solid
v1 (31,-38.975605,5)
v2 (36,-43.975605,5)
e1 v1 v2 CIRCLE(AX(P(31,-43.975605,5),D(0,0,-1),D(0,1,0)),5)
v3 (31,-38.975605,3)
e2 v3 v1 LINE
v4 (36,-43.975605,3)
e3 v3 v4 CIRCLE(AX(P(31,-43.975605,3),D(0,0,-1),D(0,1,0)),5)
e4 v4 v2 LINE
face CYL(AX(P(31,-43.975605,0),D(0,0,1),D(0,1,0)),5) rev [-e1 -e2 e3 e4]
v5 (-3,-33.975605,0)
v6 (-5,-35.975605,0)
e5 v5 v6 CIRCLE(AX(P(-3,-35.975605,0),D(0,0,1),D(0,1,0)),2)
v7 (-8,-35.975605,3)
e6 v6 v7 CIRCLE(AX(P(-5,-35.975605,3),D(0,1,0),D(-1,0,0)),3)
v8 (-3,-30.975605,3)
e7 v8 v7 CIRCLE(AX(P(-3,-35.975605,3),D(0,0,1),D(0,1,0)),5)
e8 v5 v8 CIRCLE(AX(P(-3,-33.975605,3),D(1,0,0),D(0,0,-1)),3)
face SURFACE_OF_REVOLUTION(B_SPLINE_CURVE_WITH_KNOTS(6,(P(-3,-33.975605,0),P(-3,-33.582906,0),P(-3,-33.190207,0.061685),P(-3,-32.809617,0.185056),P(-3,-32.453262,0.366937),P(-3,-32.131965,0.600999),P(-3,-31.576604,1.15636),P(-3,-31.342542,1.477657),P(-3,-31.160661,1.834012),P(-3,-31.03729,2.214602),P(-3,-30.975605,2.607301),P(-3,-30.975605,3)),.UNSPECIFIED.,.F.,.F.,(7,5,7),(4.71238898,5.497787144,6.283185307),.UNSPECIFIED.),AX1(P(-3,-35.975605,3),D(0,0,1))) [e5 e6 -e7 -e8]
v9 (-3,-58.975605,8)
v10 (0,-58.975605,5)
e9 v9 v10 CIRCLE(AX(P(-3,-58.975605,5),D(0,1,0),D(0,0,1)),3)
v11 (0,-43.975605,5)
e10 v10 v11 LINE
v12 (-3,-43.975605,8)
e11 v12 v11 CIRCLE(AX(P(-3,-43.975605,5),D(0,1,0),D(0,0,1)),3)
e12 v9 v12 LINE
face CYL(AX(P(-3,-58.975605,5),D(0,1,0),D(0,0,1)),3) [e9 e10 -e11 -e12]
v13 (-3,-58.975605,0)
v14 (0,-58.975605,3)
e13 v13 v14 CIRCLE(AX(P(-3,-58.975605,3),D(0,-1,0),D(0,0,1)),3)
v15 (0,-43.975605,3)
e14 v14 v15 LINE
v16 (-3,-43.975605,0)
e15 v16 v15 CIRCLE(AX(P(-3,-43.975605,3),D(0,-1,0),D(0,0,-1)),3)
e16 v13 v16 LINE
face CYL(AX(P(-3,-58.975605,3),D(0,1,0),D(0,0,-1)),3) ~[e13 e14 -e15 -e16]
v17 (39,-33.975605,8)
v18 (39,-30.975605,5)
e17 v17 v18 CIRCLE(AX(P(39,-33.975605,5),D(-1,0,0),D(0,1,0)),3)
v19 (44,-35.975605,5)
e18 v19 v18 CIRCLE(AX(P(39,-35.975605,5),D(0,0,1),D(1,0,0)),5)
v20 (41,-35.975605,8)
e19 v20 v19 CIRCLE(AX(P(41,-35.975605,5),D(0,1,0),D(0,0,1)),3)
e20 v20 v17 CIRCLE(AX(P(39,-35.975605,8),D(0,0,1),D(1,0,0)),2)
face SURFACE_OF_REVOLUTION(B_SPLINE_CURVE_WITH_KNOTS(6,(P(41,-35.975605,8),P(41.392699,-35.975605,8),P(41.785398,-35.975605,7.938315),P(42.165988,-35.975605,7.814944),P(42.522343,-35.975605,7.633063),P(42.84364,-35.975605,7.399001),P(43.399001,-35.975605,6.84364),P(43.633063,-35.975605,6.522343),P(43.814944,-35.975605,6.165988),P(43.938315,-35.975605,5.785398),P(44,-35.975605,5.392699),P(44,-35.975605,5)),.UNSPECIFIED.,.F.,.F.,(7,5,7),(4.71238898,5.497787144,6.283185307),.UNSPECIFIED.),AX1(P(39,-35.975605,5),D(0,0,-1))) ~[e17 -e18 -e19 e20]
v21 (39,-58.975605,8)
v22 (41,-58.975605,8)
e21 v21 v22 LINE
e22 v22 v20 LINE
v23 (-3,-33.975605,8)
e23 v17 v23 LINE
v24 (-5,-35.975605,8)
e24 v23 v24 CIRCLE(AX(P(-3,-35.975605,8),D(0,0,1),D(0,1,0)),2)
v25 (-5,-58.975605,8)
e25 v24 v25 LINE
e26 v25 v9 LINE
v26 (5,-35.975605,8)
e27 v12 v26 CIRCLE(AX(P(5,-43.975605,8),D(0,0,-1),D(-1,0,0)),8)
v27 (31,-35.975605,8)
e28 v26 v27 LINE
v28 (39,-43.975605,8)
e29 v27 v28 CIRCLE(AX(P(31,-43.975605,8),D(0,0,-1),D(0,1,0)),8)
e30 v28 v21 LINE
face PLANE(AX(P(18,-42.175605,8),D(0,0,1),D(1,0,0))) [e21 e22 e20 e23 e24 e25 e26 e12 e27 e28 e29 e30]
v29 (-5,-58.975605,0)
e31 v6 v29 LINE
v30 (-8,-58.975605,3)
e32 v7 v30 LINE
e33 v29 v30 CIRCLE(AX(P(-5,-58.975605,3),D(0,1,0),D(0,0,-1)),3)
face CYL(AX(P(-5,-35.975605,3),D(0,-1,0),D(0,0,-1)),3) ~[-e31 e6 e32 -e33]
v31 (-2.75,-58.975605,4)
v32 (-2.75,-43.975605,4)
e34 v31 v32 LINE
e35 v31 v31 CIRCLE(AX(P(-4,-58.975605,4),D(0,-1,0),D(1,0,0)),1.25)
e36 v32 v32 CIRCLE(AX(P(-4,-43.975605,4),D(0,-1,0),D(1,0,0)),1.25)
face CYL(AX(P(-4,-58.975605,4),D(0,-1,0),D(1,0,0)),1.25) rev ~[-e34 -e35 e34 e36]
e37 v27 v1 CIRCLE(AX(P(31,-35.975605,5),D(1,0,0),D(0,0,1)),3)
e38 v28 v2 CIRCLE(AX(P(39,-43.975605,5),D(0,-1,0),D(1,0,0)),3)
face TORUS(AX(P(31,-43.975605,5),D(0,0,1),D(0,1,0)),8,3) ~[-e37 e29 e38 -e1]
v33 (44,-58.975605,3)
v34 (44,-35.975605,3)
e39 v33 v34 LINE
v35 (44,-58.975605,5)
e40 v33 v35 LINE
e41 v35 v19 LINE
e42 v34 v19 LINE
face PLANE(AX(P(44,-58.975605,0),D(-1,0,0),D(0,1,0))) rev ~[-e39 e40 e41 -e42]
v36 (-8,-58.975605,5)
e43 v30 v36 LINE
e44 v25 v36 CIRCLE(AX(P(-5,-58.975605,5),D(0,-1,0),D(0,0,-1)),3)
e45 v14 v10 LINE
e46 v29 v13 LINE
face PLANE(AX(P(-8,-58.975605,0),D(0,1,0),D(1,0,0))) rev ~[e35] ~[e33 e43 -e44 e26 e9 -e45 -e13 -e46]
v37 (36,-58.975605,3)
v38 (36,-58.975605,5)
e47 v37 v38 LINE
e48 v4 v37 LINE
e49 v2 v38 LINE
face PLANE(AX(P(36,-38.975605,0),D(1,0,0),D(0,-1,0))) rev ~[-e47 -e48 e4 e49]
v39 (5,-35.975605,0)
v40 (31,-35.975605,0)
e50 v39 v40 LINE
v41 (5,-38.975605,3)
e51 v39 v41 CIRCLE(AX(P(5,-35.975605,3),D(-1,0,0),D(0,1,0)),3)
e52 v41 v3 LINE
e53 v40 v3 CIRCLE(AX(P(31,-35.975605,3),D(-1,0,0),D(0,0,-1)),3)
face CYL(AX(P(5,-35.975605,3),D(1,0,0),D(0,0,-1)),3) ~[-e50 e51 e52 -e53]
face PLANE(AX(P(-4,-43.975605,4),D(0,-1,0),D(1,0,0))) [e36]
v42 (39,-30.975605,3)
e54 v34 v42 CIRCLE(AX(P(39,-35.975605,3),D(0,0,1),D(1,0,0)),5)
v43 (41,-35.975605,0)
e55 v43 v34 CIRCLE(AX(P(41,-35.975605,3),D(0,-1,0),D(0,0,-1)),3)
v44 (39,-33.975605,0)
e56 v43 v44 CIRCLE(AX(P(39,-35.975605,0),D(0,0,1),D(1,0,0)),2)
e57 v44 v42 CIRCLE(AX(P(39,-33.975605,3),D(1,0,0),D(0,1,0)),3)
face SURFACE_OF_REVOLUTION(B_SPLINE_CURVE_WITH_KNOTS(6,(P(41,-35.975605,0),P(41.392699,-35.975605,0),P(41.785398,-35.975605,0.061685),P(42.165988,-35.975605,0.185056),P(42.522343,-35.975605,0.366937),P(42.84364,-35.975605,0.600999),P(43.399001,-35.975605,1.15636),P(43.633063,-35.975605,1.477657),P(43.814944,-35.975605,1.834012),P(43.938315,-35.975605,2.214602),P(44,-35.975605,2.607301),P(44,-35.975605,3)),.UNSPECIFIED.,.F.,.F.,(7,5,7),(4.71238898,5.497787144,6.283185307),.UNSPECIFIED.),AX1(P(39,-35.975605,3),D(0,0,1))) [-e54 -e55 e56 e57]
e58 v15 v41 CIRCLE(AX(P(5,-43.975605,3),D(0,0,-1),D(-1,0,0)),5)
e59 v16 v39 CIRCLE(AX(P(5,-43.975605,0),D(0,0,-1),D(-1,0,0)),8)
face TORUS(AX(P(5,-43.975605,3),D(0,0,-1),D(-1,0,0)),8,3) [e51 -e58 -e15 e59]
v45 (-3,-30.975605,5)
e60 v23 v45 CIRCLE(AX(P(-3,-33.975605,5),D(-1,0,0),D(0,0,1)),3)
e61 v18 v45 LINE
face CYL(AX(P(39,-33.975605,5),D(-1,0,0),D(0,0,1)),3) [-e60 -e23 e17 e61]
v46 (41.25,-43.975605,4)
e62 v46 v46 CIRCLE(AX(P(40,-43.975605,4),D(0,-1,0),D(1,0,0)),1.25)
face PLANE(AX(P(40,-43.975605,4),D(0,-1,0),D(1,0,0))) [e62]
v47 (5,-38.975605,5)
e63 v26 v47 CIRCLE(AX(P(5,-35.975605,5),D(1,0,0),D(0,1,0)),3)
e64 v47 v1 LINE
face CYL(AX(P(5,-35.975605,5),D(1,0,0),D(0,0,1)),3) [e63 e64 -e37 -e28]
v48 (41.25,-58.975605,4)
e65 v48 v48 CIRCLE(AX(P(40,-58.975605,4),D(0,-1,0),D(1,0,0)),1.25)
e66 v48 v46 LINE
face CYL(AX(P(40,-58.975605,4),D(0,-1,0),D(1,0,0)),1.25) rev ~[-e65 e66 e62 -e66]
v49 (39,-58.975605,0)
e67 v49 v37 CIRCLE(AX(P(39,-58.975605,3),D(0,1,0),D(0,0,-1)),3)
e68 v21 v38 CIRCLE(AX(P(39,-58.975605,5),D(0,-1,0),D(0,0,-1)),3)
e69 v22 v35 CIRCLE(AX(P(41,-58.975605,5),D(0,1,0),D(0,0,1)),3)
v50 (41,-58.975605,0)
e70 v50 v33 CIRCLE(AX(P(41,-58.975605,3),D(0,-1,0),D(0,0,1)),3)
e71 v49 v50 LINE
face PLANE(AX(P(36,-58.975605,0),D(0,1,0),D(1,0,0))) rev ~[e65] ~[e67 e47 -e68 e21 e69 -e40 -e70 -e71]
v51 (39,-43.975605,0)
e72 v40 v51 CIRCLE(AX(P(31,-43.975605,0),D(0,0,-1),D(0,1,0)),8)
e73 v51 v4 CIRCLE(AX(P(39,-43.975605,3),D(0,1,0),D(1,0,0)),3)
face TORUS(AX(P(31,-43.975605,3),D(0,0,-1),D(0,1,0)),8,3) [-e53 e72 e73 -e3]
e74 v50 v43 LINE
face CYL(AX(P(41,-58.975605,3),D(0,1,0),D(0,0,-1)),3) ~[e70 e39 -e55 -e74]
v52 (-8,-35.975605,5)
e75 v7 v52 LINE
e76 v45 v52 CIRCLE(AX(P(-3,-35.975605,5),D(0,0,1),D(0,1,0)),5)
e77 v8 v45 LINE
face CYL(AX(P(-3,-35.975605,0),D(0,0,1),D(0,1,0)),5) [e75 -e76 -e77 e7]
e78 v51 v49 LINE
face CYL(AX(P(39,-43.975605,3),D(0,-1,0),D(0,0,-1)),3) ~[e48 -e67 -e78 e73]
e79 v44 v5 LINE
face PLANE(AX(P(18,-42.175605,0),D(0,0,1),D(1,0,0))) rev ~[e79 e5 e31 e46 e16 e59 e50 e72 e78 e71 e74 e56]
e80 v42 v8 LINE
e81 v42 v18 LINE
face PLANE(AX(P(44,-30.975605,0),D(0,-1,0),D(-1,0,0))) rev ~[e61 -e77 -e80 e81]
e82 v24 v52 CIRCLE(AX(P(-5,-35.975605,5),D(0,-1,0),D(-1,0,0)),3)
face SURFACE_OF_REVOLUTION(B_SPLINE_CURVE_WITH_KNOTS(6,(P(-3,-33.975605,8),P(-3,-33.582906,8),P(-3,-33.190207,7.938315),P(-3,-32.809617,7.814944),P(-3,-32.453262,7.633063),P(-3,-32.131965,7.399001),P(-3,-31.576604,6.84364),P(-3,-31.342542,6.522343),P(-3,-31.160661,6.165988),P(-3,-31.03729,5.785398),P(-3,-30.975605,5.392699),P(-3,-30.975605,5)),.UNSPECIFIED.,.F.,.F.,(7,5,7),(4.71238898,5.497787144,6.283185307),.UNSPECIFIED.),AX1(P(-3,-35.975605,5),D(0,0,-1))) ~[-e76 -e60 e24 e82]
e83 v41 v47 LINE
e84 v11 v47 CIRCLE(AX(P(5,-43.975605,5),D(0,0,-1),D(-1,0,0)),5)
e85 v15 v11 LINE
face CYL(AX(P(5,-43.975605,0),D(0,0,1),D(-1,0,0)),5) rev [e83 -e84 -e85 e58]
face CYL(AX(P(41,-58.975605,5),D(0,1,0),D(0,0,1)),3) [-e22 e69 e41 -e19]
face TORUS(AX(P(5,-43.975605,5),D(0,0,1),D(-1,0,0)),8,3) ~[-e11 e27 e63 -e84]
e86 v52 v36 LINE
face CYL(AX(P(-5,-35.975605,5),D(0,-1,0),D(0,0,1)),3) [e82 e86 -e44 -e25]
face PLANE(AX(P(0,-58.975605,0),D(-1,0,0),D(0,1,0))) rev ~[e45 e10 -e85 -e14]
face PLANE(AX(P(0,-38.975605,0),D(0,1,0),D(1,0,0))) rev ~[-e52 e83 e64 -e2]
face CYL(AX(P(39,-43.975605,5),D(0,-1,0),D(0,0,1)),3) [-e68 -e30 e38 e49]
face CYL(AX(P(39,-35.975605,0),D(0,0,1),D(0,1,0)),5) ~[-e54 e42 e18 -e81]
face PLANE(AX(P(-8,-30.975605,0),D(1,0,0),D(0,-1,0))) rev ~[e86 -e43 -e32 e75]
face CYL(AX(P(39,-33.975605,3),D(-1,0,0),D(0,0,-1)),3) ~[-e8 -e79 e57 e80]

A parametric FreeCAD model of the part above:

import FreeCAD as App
import Part
import Sketcher
Q = App.Units.Quantity


def edges_at(feature, points):
    """Names of the edges that pass closest to the given points."""
    edges = feature.Shape.Edges
    near = lambda p: min(range(len(edges)), key=lambda i: edges[i].distToShape(Part.Vertex(*p))[0])
    return sorted({f"Edge{near(p) + 1}" for p in points})


def add_polygon(sketch, points):
    """Adds a closed chain of lines whose ends are joined by coincident constraints."""
    first, n = sketch.GeometryCount, len(points)
    for a, b in zip(points, points[1:] + points[:1]):
        sketch.addGeometry(Part.LineSegment(App.Vector(*a, 0), App.Vector(*b, 0)), False)
    for i in range(n):
        sketch.addConstraint(Sketcher.Constraint("Coincident", first + i, 2, first + (i + 1) % n, 1))

doc = App.newDocument("Part")
body = doc.addObject("PartDesign::Body", "Body")

sketch1 = doc.addObject("Sketcher::SketchObject", "Sketch")
body.addObject(sketch1)
sketch1.AttachmentSupport = (doc.XY_Plane, [""])
sketch1.MapMode = "FlatFace"
add_polygon(sketch1, [(44, -31), (-8, -31), (-8, -59), (0, -59), (0, -39), (36, -39), (36, -59), (44, -59)])
sketch1.addConstraint(Sketcher.Constraint("Horizontal", 0))
sketch1.addConstraint(Sketcher.Constraint("Vertical", 1))
sketch1.addConstraint(Sketcher.Constraint("Horizontal", 2))
sketch1.addConstraint(Sketcher.Constraint("Vertical", 3))
sketch1.addConstraint(Sketcher.Constraint("Horizontal", 4))
sketch1.addConstraint(Sketcher.Constraint("Vertical", 5))
sketch1.addConstraint(Sketcher.Constraint("Horizontal", 6))
sketch1.addConstraint(Sketcher.Constraint("Vertical", 7))
sketch1.addConstraint(Sketcher.Constraint("PointOnObject", 2, 2, -2))
sketch1.addConstraint(Sketcher.Constraint("Horizontal", 2, 2, 5, 2))
sketch1.addConstraint(Sketcher.Constraint("Equal", 2, 6))
sketch1.addConstraint(Sketcher.Constraint("DistanceX", 0, 2, 0, 1, Q("52 mm")))
sketch1.addConstraint(Sketcher.Constraint("DistanceX", 2, 1, 2, 2, Q("8 mm")))
sketch1.addConstraint(Sketcher.Constraint("DistanceY", 1, 2, 1, 1, Q("28 mm")))
sketch1.addConstraint(Sketcher.Constraint("DistanceY", 3, 1, 3, 2, Q("20 mm")))
sketch1.addConstraint(Sketcher.Constraint("DistanceY", 0, 2, -1, 1, Q("30.975605 mm")))
pad1 = doc.addObject("PartDesign::Pad", "Pad")
body.addObject(pad1)
pad1.Profile = sketch1
pad1.Length = 8
doc.recompute()

fillet = doc.addObject("PartDesign::Fillet", "Fillet")
body.addObject(fillet)
fillet.Base = (pad1, edges_at(pad1, [
    (-8, -30.976, 4),
    (44, -30.976, 4),
    (0, -38.976, 4),
    (36, -38.976, 4),
]))
fillet.Radius = 5
doc.recompute()

fillet2 = doc.addObject("PartDesign::Fillet", "Fillet001")
body.addObject(fillet2)
fillet2.Base = (fillet, edges_at(fillet, [
    (18, -38.976, 8),
    (44, -47.476, 8),
    (44, -47.476, 0),
    (36, -51.476, 0),
]))
fillet2.Radius = 3

sketch2 = doc.addObject("Sketcher::SketchObject", "Sketch001")
body.addObject(sketch2)
sketch2.AttachmentSupport = (doc.XZ_Plane, [""])
sketch2.MapMode = "FlatFace"
sketch2.AttachmentOffset = App.Placement(App.Vector(0, 0, 58.975605), App.Rotation())
sketch2.addGeometry(Part.Circle(App.Vector(40, 4, 0), App.Vector(0, 0, 1), 1.2), False)
sketch2.addGeometry(Part.Circle(App.Vector(-4, 4, 0), App.Vector(0, 0, 1), 1.2), False)
sketch2.addConstraint(Sketcher.Constraint("Equal", 0, 1))
sketch2.addConstraint(Sketcher.Constraint("Horizontal", 0, 3, 1, 3))
sketch2.addConstraint(Sketcher.Constraint("Diameter", 0, Q("2.5 mm")))
sketch2.addConstraint(Sketcher.Constraint("DistanceX", -1, 1, 0, 3, Q("40 mm")))
sketch2.addConstraint(Sketcher.Constraint("DistanceY", -1, 1, 0, 3, Q("4 mm")))
sketch2.addConstraint(Sketcher.Constraint("DistanceX", 1, 3, -1, 1, Q("4 mm")))
pocket1 = doc.addObject("PartDesign::Pocket", "Pocket")
body.addObject(pocket1)
pocket1.Profile = sketch2
pocket1.Length = 15

doc.recompute()
